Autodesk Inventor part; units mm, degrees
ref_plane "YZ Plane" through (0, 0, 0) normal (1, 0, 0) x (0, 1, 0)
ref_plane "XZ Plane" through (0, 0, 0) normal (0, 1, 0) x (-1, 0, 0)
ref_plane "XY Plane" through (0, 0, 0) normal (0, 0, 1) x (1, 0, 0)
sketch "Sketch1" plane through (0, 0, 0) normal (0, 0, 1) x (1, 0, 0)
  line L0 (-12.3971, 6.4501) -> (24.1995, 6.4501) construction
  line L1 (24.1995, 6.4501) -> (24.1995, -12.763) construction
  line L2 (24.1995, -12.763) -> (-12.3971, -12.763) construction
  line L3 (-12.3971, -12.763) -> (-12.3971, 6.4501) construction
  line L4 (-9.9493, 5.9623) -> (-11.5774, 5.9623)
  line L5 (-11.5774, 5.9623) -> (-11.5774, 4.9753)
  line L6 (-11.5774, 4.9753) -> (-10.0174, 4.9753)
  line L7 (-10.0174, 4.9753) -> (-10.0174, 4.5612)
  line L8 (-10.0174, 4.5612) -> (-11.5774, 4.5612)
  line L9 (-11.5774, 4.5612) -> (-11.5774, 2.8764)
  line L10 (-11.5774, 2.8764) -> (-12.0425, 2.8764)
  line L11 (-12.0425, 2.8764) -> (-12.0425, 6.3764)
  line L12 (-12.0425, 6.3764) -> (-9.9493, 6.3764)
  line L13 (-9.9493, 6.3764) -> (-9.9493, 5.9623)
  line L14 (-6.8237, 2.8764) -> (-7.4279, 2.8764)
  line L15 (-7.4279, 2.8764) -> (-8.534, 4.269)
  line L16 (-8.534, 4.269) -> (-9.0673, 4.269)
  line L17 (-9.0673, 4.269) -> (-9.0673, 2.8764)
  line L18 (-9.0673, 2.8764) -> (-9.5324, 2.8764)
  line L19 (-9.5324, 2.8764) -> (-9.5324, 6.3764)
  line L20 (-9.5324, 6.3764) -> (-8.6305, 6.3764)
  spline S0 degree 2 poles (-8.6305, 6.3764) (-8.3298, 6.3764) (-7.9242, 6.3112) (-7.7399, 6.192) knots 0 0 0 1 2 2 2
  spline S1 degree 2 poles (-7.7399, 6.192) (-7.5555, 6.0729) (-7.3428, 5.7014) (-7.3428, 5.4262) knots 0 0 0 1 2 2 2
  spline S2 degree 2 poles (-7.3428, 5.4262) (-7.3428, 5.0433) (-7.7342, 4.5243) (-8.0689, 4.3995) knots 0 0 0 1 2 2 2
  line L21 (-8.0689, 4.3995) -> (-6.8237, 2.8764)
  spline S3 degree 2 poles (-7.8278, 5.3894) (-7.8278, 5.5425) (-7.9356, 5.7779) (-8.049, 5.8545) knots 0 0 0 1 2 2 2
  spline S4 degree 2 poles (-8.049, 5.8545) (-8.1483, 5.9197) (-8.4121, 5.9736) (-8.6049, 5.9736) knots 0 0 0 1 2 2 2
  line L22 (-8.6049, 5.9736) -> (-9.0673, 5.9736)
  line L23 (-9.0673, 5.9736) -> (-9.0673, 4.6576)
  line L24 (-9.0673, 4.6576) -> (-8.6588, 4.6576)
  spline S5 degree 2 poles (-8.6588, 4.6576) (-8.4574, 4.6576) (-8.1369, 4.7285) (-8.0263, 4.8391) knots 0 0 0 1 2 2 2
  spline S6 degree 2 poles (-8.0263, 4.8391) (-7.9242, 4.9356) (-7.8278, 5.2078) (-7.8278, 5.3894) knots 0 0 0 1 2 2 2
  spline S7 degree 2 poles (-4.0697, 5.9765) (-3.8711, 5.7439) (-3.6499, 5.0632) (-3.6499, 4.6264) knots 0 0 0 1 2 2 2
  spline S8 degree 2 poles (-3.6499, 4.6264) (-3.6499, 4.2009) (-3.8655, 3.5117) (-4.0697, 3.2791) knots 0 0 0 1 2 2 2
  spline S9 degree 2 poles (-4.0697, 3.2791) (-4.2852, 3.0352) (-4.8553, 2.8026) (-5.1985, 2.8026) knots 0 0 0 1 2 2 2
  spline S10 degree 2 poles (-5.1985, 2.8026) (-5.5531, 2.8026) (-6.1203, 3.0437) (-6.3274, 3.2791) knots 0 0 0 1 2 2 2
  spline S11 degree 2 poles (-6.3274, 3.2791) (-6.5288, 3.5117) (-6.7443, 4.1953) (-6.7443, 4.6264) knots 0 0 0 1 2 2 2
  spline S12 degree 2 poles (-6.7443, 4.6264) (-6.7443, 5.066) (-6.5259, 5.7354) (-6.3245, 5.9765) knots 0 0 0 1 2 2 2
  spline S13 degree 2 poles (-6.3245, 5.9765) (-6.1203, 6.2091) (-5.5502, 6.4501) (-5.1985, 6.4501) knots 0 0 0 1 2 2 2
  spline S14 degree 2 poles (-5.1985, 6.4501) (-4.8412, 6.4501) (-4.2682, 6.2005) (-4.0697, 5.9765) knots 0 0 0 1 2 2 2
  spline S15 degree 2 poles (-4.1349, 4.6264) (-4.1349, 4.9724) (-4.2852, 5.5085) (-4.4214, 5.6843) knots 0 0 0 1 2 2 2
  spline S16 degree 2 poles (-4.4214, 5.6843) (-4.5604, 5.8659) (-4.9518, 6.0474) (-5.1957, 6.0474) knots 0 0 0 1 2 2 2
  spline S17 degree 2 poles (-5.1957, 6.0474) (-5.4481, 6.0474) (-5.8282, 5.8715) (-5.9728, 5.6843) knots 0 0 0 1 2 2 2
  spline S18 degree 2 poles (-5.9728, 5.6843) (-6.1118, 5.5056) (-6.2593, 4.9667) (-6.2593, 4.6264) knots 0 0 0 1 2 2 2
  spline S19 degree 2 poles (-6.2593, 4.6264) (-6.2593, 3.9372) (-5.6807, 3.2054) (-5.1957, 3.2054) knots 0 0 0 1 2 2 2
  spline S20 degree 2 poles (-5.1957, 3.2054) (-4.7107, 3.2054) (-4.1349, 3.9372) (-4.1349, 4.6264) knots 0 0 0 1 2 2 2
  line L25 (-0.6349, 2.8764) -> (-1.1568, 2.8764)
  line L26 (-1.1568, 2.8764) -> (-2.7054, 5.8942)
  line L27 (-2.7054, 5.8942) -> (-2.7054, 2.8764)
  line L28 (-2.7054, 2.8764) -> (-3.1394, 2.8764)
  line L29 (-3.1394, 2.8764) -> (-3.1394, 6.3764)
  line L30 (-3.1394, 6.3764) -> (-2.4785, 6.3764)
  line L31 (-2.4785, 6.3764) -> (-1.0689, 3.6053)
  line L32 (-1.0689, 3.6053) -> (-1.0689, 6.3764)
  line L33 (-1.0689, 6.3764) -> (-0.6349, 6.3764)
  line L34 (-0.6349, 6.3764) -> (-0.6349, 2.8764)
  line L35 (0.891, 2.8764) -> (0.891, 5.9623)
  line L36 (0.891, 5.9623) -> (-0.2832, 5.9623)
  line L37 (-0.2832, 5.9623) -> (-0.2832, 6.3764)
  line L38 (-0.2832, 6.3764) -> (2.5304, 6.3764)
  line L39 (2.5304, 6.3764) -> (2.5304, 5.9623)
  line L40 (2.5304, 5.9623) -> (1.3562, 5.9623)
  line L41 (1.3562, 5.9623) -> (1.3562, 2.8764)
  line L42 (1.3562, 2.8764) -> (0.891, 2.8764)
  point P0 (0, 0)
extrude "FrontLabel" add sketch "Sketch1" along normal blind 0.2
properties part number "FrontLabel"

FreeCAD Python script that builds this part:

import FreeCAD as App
import Part
import Sketcher
from FreeCAD import Vector
Q = App.Units.Quantity

doc = App.newDocument("Part")
body = doc.addObject("PartDesign::Body", "Body")
body.AllowCompound = True

# Sketch on XY plane
sketch1 = doc.addObject("Sketcher::SketchObject", "Sketch")
body.addObject(sketch1)
sketch1.AttachmentSupport = (doc.XY_Plane, [""])
sketch1.MapMode = "FlatFace"
sketch1.addGeometry([
    Part.LineSegment(Vector(-11.5774, 5.9623, 0), Vector(-9.9493, 5.9623, 0)),  # 0
    Part.LineSegment(Vector(-9.9493, 5.9623, 0), Vector(-9.9493, 6.3764, 0)),  # 1
    Part.LineSegment(Vector(-9.9493, 6.3764, 0), Vector(-12.0425, 6.3764, 0)),  # 2
    Part.LineSegment(Vector(-12.0425, 6.3764, 0), Vector(-12.0425, 2.8764, 0)),  # 3
    Part.LineSegment(Vector(-12.0425, 2.8764, 0), Vector(-11.5774, 2.8764, 0)),  # 4
    Part.LineSegment(Vector(-11.5774, 2.8764, 0), Vector(-11.5774, 4.5612, 0)),  # 5
    Part.LineSegment(Vector(-11.5774, 4.5612, 0), Vector(-10.0174, 4.5612, 0)),  # 6
    Part.LineSegment(Vector(-10.0174, 4.5612, 0), Vector(-10.0174, 4.9753, 0)),  # 7
    Part.LineSegment(Vector(-10.0174, 4.9753, 0), Vector(-11.5774, 4.9753, 0)),  # 8
    Part.LineSegment(Vector(-11.5774, 4.9753, 0), Vector(-11.5774, 5.9623, 0)),  # 9
    Part.LineSegment(Vector(-7.4279, 2.8764, 0), Vector(-6.8237, 2.8764, 0)),  # 10
    Part.LineSegment(Vector(-6.8237, 2.8764, 0), Vector(-8.0689, 4.3995, 0)),  # 11
    Part.BSplineCurve([Vector(-7.3428, 5.4262, 0), Vector(-7.3428, 5.0433, 0), Vector(-7.7342, 4.5243, 0), Vector(-8.0689, 4.3995, 0)], [3, 1, 3], [0, 1, 2], False, 2, [1, 1, 1, 1], False),  # 12
    Part.BSplineCurve([Vector(-7.7399, 6.192, 0), Vector(-7.5555, 6.0729, 0), Vector(-7.3428, 5.7014, 0), Vector(-7.3428, 5.4262, 0)], [3, 1, 3], [0, 1, 2], False, 2, [1, 1, 1, 1], False),  # 13
    Part.BSplineCurve([Vector(-8.6305, 6.3764, 0), Vector(-8.3298, 6.3764, 0), Vector(-7.9242, 6.3112, 0), Vector(-7.7399, 6.192, 0)], [3, 1, 3], [0, 1, 2], False, 2, [1, 1, 1, 1], False),  # 14
    Part.LineSegment(Vector(-8.6305, 6.3764, 0), Vector(-9.5324, 6.3764, 0)),  # 15
    Part.LineSegment(Vector(-9.5324, 6.3764, 0), Vector(-9.5324, 2.8764, 0)),  # 16
    Part.LineSegment(Vector(-9.5324, 2.8764, 0), Vector(-9.0673, 2.8764, 0)),  # 17
    Part.LineSegment(Vector(-9.0673, 2.8764, 0), Vector(-9.0673, 4.269, 0)),  # 18
    Part.LineSegment(Vector(-9.0673, 4.269, 0), Vector(-8.534, 4.269, 0)),  # 19
    Part.LineSegment(Vector(-8.534, 4.269, 0), Vector(-7.4279, 2.8764, 0)),  # 20
    Part.BSplineCurve([Vector(-7.8278, 5.3894, 0), Vector(-7.8278, 5.5425, 0), Vector(-7.9356, 5.7779, 0), Vector(-8.049, 5.8545, 0)], [3, 1, 3], [0, 1, 2], False, 2, [1, 1, 1, 1], False),  # 21
    Part.BSplineCurve([Vector(-8.0263, 4.8391, 0), Vector(-7.9242, 4.9356, 0), Vector(-7.8278, 5.2078, 0), Vector(-7.8278, 5.3894, 0)], [3, 1, 3], [0, 1, 2], False, 2, [1, 1, 1, 1], False),  # 22
    Part.BSplineCurve([Vector(-8.6588, 4.6576, 0), Vector(-8.4574, 4.6576, 0), Vector(-8.1369, 4.7285, 0), Vector(-8.0263, 4.8391, 0)], [3, 1, 3], [0, 1, 2], False, 2, [1, 1, 1, 1], False),  # 23
    Part.LineSegment(Vector(-8.6588, 4.6576, 0), Vector(-9.0673, 4.6576, 0)),  # 24
    Part.LineSegment(Vector(-9.0673, 4.6576, 0), Vector(-9.0673, 5.9736, 0)),  # 25
    Part.LineSegment(Vector(-9.0673, 5.9736, 0), Vector(-8.6049, 5.9736, 0)),  # 26
    Part.BSplineCurve([Vector(-8.049, 5.8545, 0), Vector(-8.1483, 5.9197, 0), Vector(-8.4121, 5.9736, 0), Vector(-8.6049, 5.9736, 0)], [3, 1, 3], [0, 1, 2], False, 2, [1, 1, 1, 1], False),  # 27
    Part.BSplineCurve([Vector(-4.0697, 5.9765, 0), Vector(-3.8711, 5.7439, 0), Vector(-3.6499, 5.0632, 0), Vector(-3.6499, 4.6264, 0)], [3, 1, 3], [0, 1, 2], False, 2, [1, 1, 1, 1], False),  # 28
    Part.BSplineCurve([Vector(-5.1985, 6.4501, 0), Vector(-4.8412, 6.4501, 0), Vector(-4.2682, 6.2005, 0), Vector(-4.0697, 5.9765, 0)], [3, 1, 3], [0, 1, 2], False, 2, [1, 1, 1, 1], False),  # 29
    Part.BSplineCurve([Vector(-6.3245, 5.9765, 0), Vector(-6.1203, 6.2091, 0), Vector(-5.5502, 6.4501, 0), Vector(-5.1985, 6.4501, 0)], [3, 1, 3], [0, 1, 2], False, 2, [1, 1, 1, 1], False),  # 30
    Part.BSplineCurve([Vector(-6.7443, 4.6264, 0), Vector(-6.7443, 5.066, 0), Vector(-6.5259, 5.7354, 0), Vector(-6.3245, 5.9765, 0)], [3, 1, 3], [0, 1, 2], False, 2, [1, 1, 1, 1], False),  # 31
    Part.BSplineCurve([Vector(-6.3274, 3.2791, 0), Vector(-6.5288, 3.5117, 0), Vector(-6.7443, 4.1953, 0), Vector(-6.7443, 4.6264, 0)], [3, 1, 3], [0, 1, 2], False, 2, [1, 1, 1, 1], False),  # 32
    Part.BSplineCurve([Vector(-5.1985, 2.8026, 0), Vector(-5.5531, 2.8026, 0), Vector(-6.1203, 3.0437, 0), Vector(-6.3274, 3.2791, 0)], [3, 1, 3], [0, 1, 2], False, 2, [1, 1, 1, 1], False),  # 33
    Part.BSplineCurve([Vector(-4.0697, 3.2791, 0), Vector(-4.2852, 3.0352, 0), Vector(-4.8553, 2.8026, 0), Vector(-5.1985, 2.8026, 0)], [3, 1, 3], [0, 1, 2], False, 2, [1, 1, 1, 1], False),  # 34
    Part.BSplineCurve([Vector(-3.6499, 4.6264, 0), Vector(-3.6499, 4.2009, 0), Vector(-3.8655, 3.5117, 0), Vector(-4.0697, 3.2791, 0)], [3, 1, 3], [0, 1, 2], False, 2, [1, 1, 1, 1], False),  # 35
    Part.BSplineCurve([Vector(-4.1349, 4.6264, 0), Vector(-4.1349, 4.9724, 0), Vector(-4.2852, 5.5085, 0), Vector(-4.4214, 5.6843, 0)], [3, 1, 3], [0, 1, 2], False, 2, [1, 1, 1, 1], False),  # 36
    Part.BSplineCurve([Vector(-5.1957, 3.2054, 0), Vector(-4.7107, 3.2054, 0), Vector(-4.1349, 3.9372, 0), Vector(-4.1349, 4.6264, 0)], [3, 1, 3], [0, 1, 2], False, 2, [1, 1, 1, 1], False),  # 37
    Part.BSplineCurve([Vector(-6.2593, 4.6264, 0), Vector(-6.2593, 3.9372, 0), Vector(-5.6807, 3.2054, 0), Vector(-5.1957, 3.2054, 0)], [3, 1, 3], [0, 1, 2], False, 2, [1, 1, 1, 1], False),  # 38
    Part.BSplineCurve([Vector(-5.9728, 5.6843, 0), Vector(-6.1118, 5.5056, 0), Vector(-6.2593, 4.9667, 0), Vector(-6.2593, 4.6264, 0)], [3, 1, 3], [0, 1, 2], False, 2, [1, 1, 1, 1], False),  # 39
    Part.BSplineCurve([Vector(-5.1957, 6.0474, 0), Vector(-5.4481, 6.0474, 0), Vector(-5.8282, 5.8715, 0), Vector(-5.9728, 5.6843, 0)], [3, 1, 3], [0, 1, 2], False, 2, [1, 1, 1, 1], False),  # 40
    Part.BSplineCurve([Vector(-4.4214, 5.6843, 0), Vector(-4.5604, 5.8659, 0), Vector(-4.9518, 6.0474, 0), Vector(-5.1957, 6.0474, 0)], [3, 1, 3], [0, 1, 2], False, 2, [1, 1, 1, 1], False),  # 41
    Part.LineSegment(Vector(-1.1568, 2.8764, 0), Vector(-0.6349, 2.8764, 0)),  # 42
    Part.LineSegment(Vector(-0.6349, 2.8764, 0), Vector(-0.6349, 6.3764, 0)),  # 43
    Part.LineSegment(Vector(-0.6349, 6.3764, 0), Vector(-1.0689, 6.3764, 0)),  # 44
    Part.LineSegment(Vector(-1.0689, 6.3764, 0), Vector(-1.0689, 3.6053, 0)),  # 45
    Part.LineSegment(Vector(-1.0689, 3.6053, 0), Vector(-2.4785, 6.3764, 0)),  # 46
    Part.LineSegment(Vector(-2.4785, 6.3764, 0), Vector(-3.1394, 6.3764, 0)),  # 47
    Part.LineSegment(Vector(-3.1394, 6.3764, 0), Vector(-3.1394, 2.8764, 0)),  # 48
    Part.LineSegment(Vector(-3.1394, 2.8764, 0), Vector(-2.7054, 2.8764, 0)),  # 49
    Part.LineSegment(Vector(-2.7054, 2.8764, 0), Vector(-2.7054, 5.8942, 0)),  # 50
    Part.LineSegment(Vector(-2.7054, 5.8942, 0), Vector(-1.1568, 2.8764, 0)),  # 51
    Part.LineSegment(Vector(0.891, 5.9623, 0), Vector(0.891, 2.8764, 0)),  # 52
    Part.LineSegment(Vector(0.891, 2.8764, 0), Vector(1.3562, 2.8764, 0)),  # 53
    Part.LineSegment(Vector(1.3562, 2.8764, 0), Vector(1.3562, 5.9623, 0)),  # 54
    Part.LineSegment(Vector(1.3562, 5.9623, 0), Vector(2.5304, 5.9623, 0)),  # 55
    Part.LineSegment(Vector(2.5304, 5.9623, 0), Vector(2.5304, 6.3764, 0)),  # 56
    Part.LineSegment(Vector(2.5304, 6.3764, 0), Vector(-0.2832, 6.3764, 0)),  # 57
    Part.LineSegment(Vector(-0.2832, 6.3764, 0), Vector(-0.2832, 5.9623, 0)),  # 58
    Part.LineSegment(Vector(-0.2832, 5.9623, 0), Vector(0.891, 5.9623, 0)),  # 59
], False)
sketch1.addConstraint([
    Sketcher.Constraint("Block", 12),
    Sketcher.Constraint("Block", 13),
    Sketcher.Constraint("Block", 14),
    Sketcher.Constraint("Block", 21),
    Sketcher.Constraint("Block", 22),
    Sketcher.Constraint("Block", 23),
    Sketcher.Constraint("Block", 27),
    Sketcher.Constraint("Block", 28),
    Sketcher.Constraint("Block", 29),
    Sketcher.Constraint("Block", 30),
    Sketcher.Constraint("Block", 31),
    Sketcher.Constraint("Block", 32),
    Sketcher.Constraint("Block", 33),
    Sketcher.Constraint("Block", 34),
    Sketcher.Constraint("Block", 35),
    Sketcher.Constraint("Block", 36),
    Sketcher.Constraint("Block", 37),
    Sketcher.Constraint("Block", 38),
    Sketcher.Constraint("Block", 39),
    Sketcher.Constraint("Block", 40),
    Sketcher.Constraint("Block", 41),
    Sketcher.Constraint("Coincident", 0, 2, 1, 1),
    Sketcher.Constraint("Coincident", 1, 2, 2, 1),
    Sketcher.Constraint("Coincident", 2, 2, 3, 1),
    Sketcher.Constraint("Coincident", 3, 2, 4, 1),
    Sketcher.Constraint("Coincident", 4, 2, 5, 1),
    Sketcher.Constraint("Coincident", 5, 2, 6, 1),
    Sketcher.Constraint("Coincident", 6, 2, 7, 1),
    Sketcher.Constraint("Coincident", 7, 2, 8, 1),
    Sketcher.Constraint("Coincident", 8, 2, 9, 1),
    Sketcher.Constraint("Coincident", 9, 2, 0, 1),
    Sketcher.Constraint("Coincident", 10, 2, 11, 1),
    Sketcher.Constraint("Coincident", 11, 2, 12, 2),
    Sketcher.Constraint("Coincident", 14, 1, 15, 1),
    Sketcher.Constraint("Coincident", 15, 2, 16, 1),
    Sketcher.Constraint("Coincident", 16, 2, 17, 1),
    Sketcher.Constraint("Coincident", 17, 2, 18, 1),
    Sketcher.Constraint("Coincident", 18, 2, 19, 1),
    Sketcher.Constraint("Coincident", 19, 2, 20, 1),
    Sketcher.Constraint("Coincident", 20, 2, 10, 1),
    Sketcher.Constraint("Coincident", 23, 1, 24, 1),
    Sketcher.Constraint("Coincident", 24, 2, 25, 1),
    Sketcher.Constraint("Coincident", 25, 2, 26, 1),
    Sketcher.Constraint("Coincident", 26, 2, 27, 2),
    Sketcher.Constraint("Coincident", 42, 2, 43, 1),
    Sketcher.Constraint("Coincident", 43, 2, 44, 1),
    Sketcher.Constraint("Coincident", 44, 2, 45, 1),
    Sketcher.Constraint("Coincident", 45, 2, 46, 1),
    Sketcher.Constraint("Coincident", 46, 2, 47, 1),
    Sketcher.Constraint("Coincident", 47, 2, 48, 1),
    Sketcher.Constraint("Coincident", 48, 2, 49, 1),
    Sketcher.Constraint("Coincident", 49, 2, 50, 1),
    Sketcher.Constraint("Coincident", 50, 2, 51, 1),
    Sketcher.Constraint("Coincident", 51, 2, 42, 1),
    Sketcher.Constraint("Coincident", 52, 2, 53, 1),
    Sketcher.Constraint("Coincident", 53, 2, 54, 1),
    Sketcher.Constraint("Coincident", 54, 2, 55, 1),
    Sketcher.Constraint("Coincident", 55, 2, 56, 1),
    Sketcher.Constraint("Coincident", 56, 2, 57, 1),
    Sketcher.Constraint("Coincident", 57, 2, 58, 1),
    Sketcher.Constraint("Coincident", 58, 2, 59, 1),
    Sketcher.Constraint("Coincident", 59, 2, 52, 1),
    Sketcher.Constraint("Horizontal", 0),
    Sketcher.Constraint("Vertical", 1),
    Sketcher.Constraint("Horizontal", 2),
    Sketcher.Constraint("Vertical", 3),
    Sketcher.Constraint("Horizontal", 4),
    Sketcher.Constraint("Vertical", 5),
    Sketcher.Constraint("Horizontal", 6),
    Sketcher.Constraint("Vertical", 7),
    Sketcher.Constraint("Horizontal", 8),
    Sketcher.Constraint("Vertical", 9),
    Sketcher.Constraint("Horizontal", 10),
    Sketcher.Constraint("Horizontal", 15),
    Sketcher.Constraint("Vertical", 16),
    Sketcher.Constraint("Horizontal", 17),
    Sketcher.Constraint("Vertical", 18),
    Sketcher.Constraint("Horizontal", 19),
    Sketcher.Constraint("Horizontal", 24),
    Sketcher.Constraint("Vertical", 25),
    Sketcher.Constraint("Horizontal", 26),
    Sketcher.Constraint("Horizontal", 42),
    Sketcher.Constraint("Vertical", 43),
    Sketcher.Constraint("Horizontal", 44),
    Sketcher.Constraint("Vertical", 45),
    Sketcher.Constraint("Horizontal", 47),
    Sketcher.Constraint("Vertical", 48),
    Sketcher.Constraint("Horizontal", 49),
    Sketcher.Constraint("Vertical", 50),
    Sketcher.Constraint("Vertical", 52),
    Sketcher.Constraint("Horizontal", 53),
    Sketcher.Constraint("Vertical", 54),
    Sketcher.Constraint("Horizontal", 55),
    Sketcher.Constraint("Vertical", 56),
    Sketcher.Constraint("Horizontal", 57),
    Sketcher.Constraint("Vertical", 58),
    Sketcher.Constraint("Horizontal", 59),
    Sketcher.Constraint("Horizontal", 4, 2, 10, 2),
    Sketcher.Constraint("Horizontal", 2, 2, 15, 2),
    Sketcher.Constraint("Horizontal", 10, 2, 16, 2),
    Sketcher.Constraint("Horizontal", 20, 2, 42, 2),
    Sketcher.Constraint("Horizontal", 15, 2, 43, 2),
    Sketcher.Constraint("Horizontal", 44, 2, 46, 2),
    Sketcher.Constraint("Horizontal", 42, 2, 48, 2),
    Sketcher.Constraint("Horizontal", 51, 2, 52, 2),
    Sketcher.Constraint("Horizontal", 9, 2, 54, 2),
    Sketcher.Constraint("Horizontal", 47, 2, 56, 2),
    Sketcher.Constraint("Horizontal", 55, 2, 58, 2),
    Sketcher.Constraint("Vertical", 5, 2, 8, 2),
    Sketcher.Constraint("Vertical", 18, 2, 24, 2),
    Sketcher.Constraint("Equal", 4, 17),
    Sketcher.Constraint("Equal", 44, 49),
    Sketcher.Constraint("Equal", 17, 53),
    Sketcher.Constraint("Equal", 55, 59),
    Sketcher.Constraint("Equal", 1, 7),
    Sketcher.Constraint("DistanceY", 3, 2, 3, 1, Q("3.5 mm")),
    Sketcher.Constraint("DistanceX", 11, 2, 44, 2, Q("7 mm")),
    Sketcher.Constraint("DistanceX", 6, 1, 6, 2, Q("1.56 mm")),
    Sketcher.Constraint("Angle", 20, Q("-51.541 deg")),
    Sketcher.Constraint("DistanceX", 0, 1, 0, 2, Q("1.628 mm")),
    Sketcher.Constraint("DistanceX", 4, 1, 4, 2, Q("0.465 mm")),
    Sketcher.Constraint("DistanceX", 15, 2, 15, 1, Q("0.902 mm")),
    Sketcher.Constraint("DistanceX", 42, 1, 42, 2, Q("0.522 mm")),
    Sketcher.Constraint("DistanceX", 44, 2, 44, 1, Q("0.434 mm")),
    Sketcher.Constraint("DistanceX", 47, 2, 47, 1, Q("0.661 mm")),
    Sketcher.Constraint("DistanceY", 1, 1, 1, 2, Q("0.414 mm")),
    Sketcher.Constraint("DistanceY", 9, 1, 9, 2, Q("0.987 mm")),
    Sketcher.Constraint("DistanceY", 45, 2, 45, 1, Q("2.771 mm")),
    Sketcher.Constraint("DistanceX", 3, 2, 16, 2, Q("2.51 mm")),
    Sketcher.Constraint("DistanceX", 45, 2, 52, 2, Q("1.96 mm")),
    Sketcher.Constraint("Distance", 46, Q("3.109 mm")),
    Sketcher.Constraint("Distance", 51, Q("3.392 mm")),
    Sketcher.Constraint("DistanceX", 10, 1, 10, 2, Q("0.6042 mm")),
    Sketcher.Constraint("DistanceX", 19, 1, 19, 2, Q("0.5333 mm")),
    Sketcher.Constraint("DistanceX", 55, 1, 55, 2, Q("1.1742 mm")),
    Sketcher.Constraint("DistanceY", 18, 1, 18, 2, Q("1.3926 mm")),
])
pad1 = doc.addObject("PartDesign::Pad", "Pad")
body.addObject(pad1)
pad1.Profile = sketch1
pad1.Length = 0.2

doc.recompute()
